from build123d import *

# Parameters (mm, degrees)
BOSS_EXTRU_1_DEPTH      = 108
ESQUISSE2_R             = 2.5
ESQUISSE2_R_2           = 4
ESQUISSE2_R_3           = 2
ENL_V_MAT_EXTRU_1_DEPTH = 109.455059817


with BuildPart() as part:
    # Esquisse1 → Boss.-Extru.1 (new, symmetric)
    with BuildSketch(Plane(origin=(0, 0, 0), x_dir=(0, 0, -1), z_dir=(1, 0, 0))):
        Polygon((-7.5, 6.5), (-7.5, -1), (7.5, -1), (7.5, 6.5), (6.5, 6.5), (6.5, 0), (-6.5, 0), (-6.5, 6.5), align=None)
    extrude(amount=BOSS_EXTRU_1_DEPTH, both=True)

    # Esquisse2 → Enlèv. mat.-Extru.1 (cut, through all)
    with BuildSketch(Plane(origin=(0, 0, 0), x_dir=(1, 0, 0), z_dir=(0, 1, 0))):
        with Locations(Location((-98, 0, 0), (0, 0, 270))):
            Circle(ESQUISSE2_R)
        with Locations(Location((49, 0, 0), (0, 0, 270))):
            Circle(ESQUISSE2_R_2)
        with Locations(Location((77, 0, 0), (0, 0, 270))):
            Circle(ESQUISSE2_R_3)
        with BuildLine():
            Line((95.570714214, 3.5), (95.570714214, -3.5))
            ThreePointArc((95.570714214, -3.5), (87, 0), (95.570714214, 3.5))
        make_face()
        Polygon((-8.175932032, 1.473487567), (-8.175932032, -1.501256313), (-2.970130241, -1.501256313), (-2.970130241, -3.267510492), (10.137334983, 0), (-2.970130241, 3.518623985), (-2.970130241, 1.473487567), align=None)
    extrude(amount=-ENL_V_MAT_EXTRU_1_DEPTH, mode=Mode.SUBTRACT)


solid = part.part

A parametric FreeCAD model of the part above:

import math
import FreeCAD as App
import Part
import Sketcher


def add_polygon(sketch, points):
    """Adds a closed chain of lines whose ends are joined by coincident constraints."""
    first, n = sketch.GeometryCount, len(points)
    for a, b in zip(points, points[1:] + points[:1]):
        sketch.addGeometry(Part.LineSegment(App.Vector(*a, 0), App.Vector(*b, 0)), False)
    for i in range(n):
        sketch.addConstraint(Sketcher.Constraint("Coincident", first + i, 2, first + (i + 1) % n, 1))

doc = App.newDocument("Part")
body = doc.addObject("PartDesign::Body", "Body")

# Sketch on YZ plane
sketch1 = body.newObject("Sketcher::SketchObject", "Sketch")
sketch1.AttachmentSupport = (doc.getObject("YZ_Plane"), [""])
sketch1.MapMode = "FlatFace"
add_polygon(sketch1, [(6.5, 7.5), (-1, 7.5), (-1, -7.5), (6.5, -7.5), (6.5, -6.5), (0, -6.5), (0, 6.5), (6.5, 6.5)])  # lines 0-7
sketch1.addConstraint([
    Sketcher.Constraint("Horizontal", 0),
    Sketcher.Constraint("Vertical", 1),
    Sketcher.Constraint("Horizontal", 2),
    Sketcher.Constraint("Vertical", 3),
    Sketcher.Constraint("Horizontal", 4),
    Sketcher.Constraint("Vertical", 5),
    Sketcher.Constraint("Horizontal", 6),
    Sketcher.Constraint("Vertical", 7),
    Sketcher.Constraint("Symmetric", 4, 2, 5, 2, -1, 1),
    Sketcher.Constraint("Symmetric", 2, 2, 7, 2, -1),
    Sketcher.Constraint("DistanceY", 1, 2, 1, 1, 15.0),
    Sketcher.Constraint("DistanceY", 3, 1, 3, 2, 1.0),
    Sketcher.Constraint("DistanceX", 0, 2, 0, 1, 7.5),
    Sketcher.Constraint("DistanceX", 4, 2, 4, 1, 6.5),
])
pad1 = body.newObject("PartDesign::Pad", "Pad")
pad1.Profile = sketch1
pad1.Length = 216
pad1.Midplane = True

# Sketch on XZ plane
sketch2 = body.newObject("Sketcher::SketchObject", "Sketch001")
sketch2.AttachmentSupport = (doc.getObject("XZ_Plane"), [""])
sketch2.MapMode = "FlatFace"
sketch2.addGeometry(Part.Circle(App.Vector(-98, 0, 0), App.Vector(0, 0, 1), 2.5), False)  # 0
sketch2.addGeometry(Part.Circle(App.Vector(49, 0, 0), App.Vector(0, 0, 1), 4), False)  # 1
sketch2.addGeometry(Part.Circle(App.Vector(77, 0, 0), App.Vector(0, 0, 1), 2), False)  # 2
sketch2.addGeometry(Part.LineSegment(App.Vector(95.570714, 3.5, 0), App.Vector(95.570714, -3.5, 0)), False)  # 3
sketch2.addGeometry(Part.ArcOfCircle(Part.Circle(App.Vector(92, 0, 0), App.Vector(0, 0, 1), 5), math.radians(44.427004), math.radians(315.572996)), False)  # 4
add_polygon(sketch2, [(-8.175932, -1.473488), (-8.175932, 1.501256), (-2.97013, 1.501256), (-2.97013, 3.26751), (10.137335, 0), (-2.97013, -3.518624), (-2.97013, -1.473488)])  # lines 5-11
sketch2.addConstraint([
    Sketcher.Constraint("Coincident", 3, 1, 4, 1),
    Sketcher.Constraint("Coincident", 4, 2, 3, 2),
    Sketcher.Constraint("Vertical", 3),
    Sketcher.Constraint("Vertical", 5),
    Sketcher.Constraint("Horizontal", 6),
    Sketcher.Constraint("Vertical", 7),
    Sketcher.Constraint("Vertical", 10),
    Sketcher.Constraint("Horizontal", 11),
    Sketcher.Constraint("PointOnObject", 0, 3, -1),
    Sketcher.Constraint("PointOnObject", 1, 3, -1),
    Sketcher.Constraint("PointOnObject", 2, 3, -1),
    Sketcher.Constraint("PointOnObject", 4, 3, -1),
    Sketcher.Constraint("PointOnObject", 8, 2, -1),
    Sketcher.Constraint("Vertical", 7, 2, 9, 2),
    Sketcher.Constraint("Diameter", 0, 5.0),
    Sketcher.Constraint("Diameter", 1, 8.0),
    Sketcher.Constraint("Diameter", 2, 4.0),
    Sketcher.Constraint("Radius", 4, 5.0),
    Sketcher.Constraint("DistanceY", 3, 2, 3, 1, 7.0),
    Sketcher.Constraint("DistanceX", 0, 3, -1, 1, 98.0),
    Sketcher.Constraint("DistanceX", -1, 1, 1, 3, 49.0),
    Sketcher.Constraint("DistanceX", -1, 1, 2, 3, 77.0),
    Sketcher.Constraint("DistanceX", -1, 1, 4, 3, 92.0),
    Sketcher.Constraint("DistanceX", 6, 1, 6, 2, 5.205802),
    Sketcher.Constraint("DistanceY", 10, 2, 7, 2, 4.740998),
    Sketcher.Constraint("Distance", 8, 13.5086),
    Sketcher.Constraint("DistanceY", 5, 1, 5, 2, 2.974744),
    Sketcher.Constraint("DistanceY", 10, 1, 10, 2, 2.045136),
    Sketcher.Constraint("DistanceX", 6, 2, -1, 1, 2.97013),
    Sketcher.Constraint("DistanceY", -1, 1, 7, 2, 3.26751),
])
pocket1 = body.newObject("PartDesign::Pocket", "Pocket")
pocket1.Profile = sketch2
pocket1.Type = "ThroughAll"
pocket1.Reversed = True

doc.recompute()
